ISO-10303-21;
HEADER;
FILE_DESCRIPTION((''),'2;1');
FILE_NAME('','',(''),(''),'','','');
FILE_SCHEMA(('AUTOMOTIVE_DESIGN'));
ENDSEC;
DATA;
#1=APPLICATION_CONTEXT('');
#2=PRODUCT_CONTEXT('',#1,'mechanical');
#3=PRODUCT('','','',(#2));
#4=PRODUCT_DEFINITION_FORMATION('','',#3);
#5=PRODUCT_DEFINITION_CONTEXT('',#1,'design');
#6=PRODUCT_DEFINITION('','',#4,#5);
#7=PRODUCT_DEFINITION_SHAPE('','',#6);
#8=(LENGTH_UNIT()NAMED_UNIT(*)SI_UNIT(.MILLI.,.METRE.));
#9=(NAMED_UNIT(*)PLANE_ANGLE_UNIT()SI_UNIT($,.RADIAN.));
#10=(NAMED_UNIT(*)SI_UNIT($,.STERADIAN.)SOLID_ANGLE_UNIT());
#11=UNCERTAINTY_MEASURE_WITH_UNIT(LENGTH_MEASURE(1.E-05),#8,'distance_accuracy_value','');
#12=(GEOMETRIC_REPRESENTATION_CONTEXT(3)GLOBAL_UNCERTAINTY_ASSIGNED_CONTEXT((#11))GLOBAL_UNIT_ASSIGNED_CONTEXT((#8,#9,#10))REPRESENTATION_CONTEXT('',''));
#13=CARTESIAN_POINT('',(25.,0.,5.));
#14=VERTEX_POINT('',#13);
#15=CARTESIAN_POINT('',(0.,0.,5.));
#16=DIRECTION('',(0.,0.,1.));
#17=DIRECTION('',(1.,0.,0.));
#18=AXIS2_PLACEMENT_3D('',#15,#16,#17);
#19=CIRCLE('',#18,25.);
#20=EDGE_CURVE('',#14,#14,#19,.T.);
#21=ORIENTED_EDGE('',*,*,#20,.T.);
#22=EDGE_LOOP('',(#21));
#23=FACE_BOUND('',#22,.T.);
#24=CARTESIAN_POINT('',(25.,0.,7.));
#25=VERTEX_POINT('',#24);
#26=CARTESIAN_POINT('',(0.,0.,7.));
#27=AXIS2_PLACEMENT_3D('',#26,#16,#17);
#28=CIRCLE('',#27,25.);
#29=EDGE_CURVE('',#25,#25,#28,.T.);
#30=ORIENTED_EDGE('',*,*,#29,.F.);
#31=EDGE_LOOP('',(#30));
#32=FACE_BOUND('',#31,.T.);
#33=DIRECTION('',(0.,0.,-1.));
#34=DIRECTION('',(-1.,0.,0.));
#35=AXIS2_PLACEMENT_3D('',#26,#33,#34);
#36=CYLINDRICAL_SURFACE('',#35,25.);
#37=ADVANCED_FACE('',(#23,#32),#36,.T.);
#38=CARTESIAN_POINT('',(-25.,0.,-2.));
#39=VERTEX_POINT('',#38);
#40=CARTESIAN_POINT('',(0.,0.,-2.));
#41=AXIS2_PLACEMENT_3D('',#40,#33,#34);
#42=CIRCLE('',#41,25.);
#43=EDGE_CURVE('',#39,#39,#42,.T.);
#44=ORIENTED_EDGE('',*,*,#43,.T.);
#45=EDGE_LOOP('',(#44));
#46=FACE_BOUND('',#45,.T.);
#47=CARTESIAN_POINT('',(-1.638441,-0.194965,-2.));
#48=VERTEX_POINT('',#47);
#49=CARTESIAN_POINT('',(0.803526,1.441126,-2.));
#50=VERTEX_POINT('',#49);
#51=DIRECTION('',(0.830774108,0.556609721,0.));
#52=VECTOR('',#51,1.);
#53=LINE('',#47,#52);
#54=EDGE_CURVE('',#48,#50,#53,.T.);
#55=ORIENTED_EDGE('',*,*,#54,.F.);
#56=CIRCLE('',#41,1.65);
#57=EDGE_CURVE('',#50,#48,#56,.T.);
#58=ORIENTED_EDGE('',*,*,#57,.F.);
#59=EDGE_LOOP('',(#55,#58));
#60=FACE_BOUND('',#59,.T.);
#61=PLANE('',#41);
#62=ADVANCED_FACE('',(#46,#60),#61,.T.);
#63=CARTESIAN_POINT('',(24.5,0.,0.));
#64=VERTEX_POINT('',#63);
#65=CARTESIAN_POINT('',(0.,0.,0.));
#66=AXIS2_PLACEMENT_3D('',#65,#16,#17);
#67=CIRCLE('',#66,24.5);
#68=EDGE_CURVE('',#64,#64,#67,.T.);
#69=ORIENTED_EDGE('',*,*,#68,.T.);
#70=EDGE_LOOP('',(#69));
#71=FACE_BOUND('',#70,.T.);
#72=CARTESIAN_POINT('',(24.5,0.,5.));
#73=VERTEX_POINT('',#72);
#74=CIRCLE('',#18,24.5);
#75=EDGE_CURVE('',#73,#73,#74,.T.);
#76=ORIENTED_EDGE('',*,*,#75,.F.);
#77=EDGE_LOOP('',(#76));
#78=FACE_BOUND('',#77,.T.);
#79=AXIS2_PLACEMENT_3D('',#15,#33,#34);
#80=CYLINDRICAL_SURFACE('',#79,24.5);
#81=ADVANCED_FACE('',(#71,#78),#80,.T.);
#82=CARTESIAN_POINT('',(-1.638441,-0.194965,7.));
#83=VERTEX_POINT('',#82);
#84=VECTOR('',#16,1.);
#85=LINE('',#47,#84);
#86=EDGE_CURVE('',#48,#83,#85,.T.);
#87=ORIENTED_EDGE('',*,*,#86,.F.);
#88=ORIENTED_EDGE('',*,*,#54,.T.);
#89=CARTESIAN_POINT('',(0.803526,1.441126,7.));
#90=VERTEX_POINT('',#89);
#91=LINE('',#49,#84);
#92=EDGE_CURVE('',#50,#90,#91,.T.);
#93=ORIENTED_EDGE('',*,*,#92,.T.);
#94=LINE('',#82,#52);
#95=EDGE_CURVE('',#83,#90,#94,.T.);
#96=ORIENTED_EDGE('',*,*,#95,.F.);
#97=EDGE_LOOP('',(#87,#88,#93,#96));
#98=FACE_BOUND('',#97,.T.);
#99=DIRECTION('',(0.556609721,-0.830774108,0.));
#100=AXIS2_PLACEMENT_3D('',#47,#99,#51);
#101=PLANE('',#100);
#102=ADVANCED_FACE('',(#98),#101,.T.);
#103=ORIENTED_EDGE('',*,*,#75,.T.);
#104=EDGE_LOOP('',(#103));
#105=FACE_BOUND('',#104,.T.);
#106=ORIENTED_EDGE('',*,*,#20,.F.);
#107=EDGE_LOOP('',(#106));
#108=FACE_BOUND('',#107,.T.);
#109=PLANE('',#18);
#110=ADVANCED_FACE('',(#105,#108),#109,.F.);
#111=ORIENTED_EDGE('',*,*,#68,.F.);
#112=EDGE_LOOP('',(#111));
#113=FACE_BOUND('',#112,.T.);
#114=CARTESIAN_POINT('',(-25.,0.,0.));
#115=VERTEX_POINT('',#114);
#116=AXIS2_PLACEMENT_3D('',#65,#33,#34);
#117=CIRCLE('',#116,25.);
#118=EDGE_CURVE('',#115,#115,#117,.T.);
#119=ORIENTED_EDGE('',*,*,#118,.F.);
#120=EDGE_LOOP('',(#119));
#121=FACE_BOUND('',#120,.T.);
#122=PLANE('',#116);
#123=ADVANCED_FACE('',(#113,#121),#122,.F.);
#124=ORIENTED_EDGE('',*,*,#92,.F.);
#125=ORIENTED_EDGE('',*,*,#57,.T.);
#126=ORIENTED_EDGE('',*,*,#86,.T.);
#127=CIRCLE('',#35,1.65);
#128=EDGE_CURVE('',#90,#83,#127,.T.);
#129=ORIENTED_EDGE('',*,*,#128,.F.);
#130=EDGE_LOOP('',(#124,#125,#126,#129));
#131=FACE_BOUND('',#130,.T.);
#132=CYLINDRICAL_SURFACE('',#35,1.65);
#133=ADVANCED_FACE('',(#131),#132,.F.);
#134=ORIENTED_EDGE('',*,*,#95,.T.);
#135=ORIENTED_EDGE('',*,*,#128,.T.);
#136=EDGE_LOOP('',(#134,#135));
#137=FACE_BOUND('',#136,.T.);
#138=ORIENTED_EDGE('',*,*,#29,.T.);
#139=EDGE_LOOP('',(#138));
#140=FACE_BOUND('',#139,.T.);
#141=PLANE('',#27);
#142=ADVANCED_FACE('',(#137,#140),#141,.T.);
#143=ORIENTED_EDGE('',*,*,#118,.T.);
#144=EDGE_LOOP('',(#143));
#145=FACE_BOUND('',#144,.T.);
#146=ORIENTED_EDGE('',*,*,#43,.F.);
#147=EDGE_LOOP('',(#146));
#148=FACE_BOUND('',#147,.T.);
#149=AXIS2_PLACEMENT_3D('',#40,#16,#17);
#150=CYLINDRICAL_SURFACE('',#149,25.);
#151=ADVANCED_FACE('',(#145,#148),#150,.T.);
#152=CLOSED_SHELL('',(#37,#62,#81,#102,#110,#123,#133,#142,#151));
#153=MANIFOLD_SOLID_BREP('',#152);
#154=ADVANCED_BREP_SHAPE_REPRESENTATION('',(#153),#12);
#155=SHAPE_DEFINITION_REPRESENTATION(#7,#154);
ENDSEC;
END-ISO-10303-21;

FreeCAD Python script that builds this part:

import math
import FreeCAD as App
import Part
import Sketcher

V = App.Vector

doc = App.newDocument("Part")
body = doc.addObject("PartDesign::Body", "Body")

# Sketch on XY plane
sketch1 = body.newObject("Sketcher::SketchObject", "Sketch")
sketch1.AttachmentSupport = (doc.getObject("XY_Plane"), [""])
sketch1.MapMode = "FlatFace"
sketch1.addGeometry(Part.Circle(V(0, 0, 0), V(0, 0, 1), 24), False)
sketch1.addConstraint([
    Sketcher.Constraint("Coincident", 0, 3, -1, 1),
    Sketcher.Constraint("Diameter", 0, 49.0),
])
pad1 = body.newObject("PartDesign::Pad", "Pad")
pad1.Profile = sketch1
pad1.Length = 5

# Sketch on XY plane
sketch2 = body.newObject("Sketcher::SketchObject", "Sketch001")
sketch2.AttachmentSupport = (doc.getObject("XY_Plane"), [""])
sketch2.MapMode = "FlatFace"
sketch2.addGeometry(Part.Circle(V(0, 0, 0), V(0, 0, 1), 25), False)
sketch2.addConstraint([
    Sketcher.Constraint("Coincident", 0, 3, -1, 1),
    Sketcher.Constraint("Diameter", 0, 50.0),
])
pad2 = body.newObject("PartDesign::Pad", "Pad001")
pad2.Profile = sketch2
pad2.Length = 2
pad2.Reversed = True

# Sketch on XY plane
sketch3 = body.newObject("Sketcher::SketchObject", "Sketch002")
sketch3.AttachmentSupport = (doc.getObject("XY_Plane"), [""])
sketch3.MapMode = "FlatFace"
sketch3.AttachmentOffset = App.Placement(V(0, 0, 7), App.Rotation())
sketch3.addGeometry(Part.Circle(V(0, 0, 0), V(0, 0, 1), 25), False)
sketch3.addConstraint([
    Sketcher.Constraint("Coincident", 0, 3, -1, 1),
    Sketcher.Constraint("Diameter", 0, 50.0),
])
pad3 = body.newObject("PartDesign::Pad", "Pad002")
pad3.Profile = sketch3
pad3.Length = 2
pad3.Reversed = True

# Sketch on XY plane
sketch4 = body.newObject("Sketcher::SketchObject", "Sketch003")
sketch4.AttachmentSupport = (doc.getObject("XY_Plane"), [""])
sketch4.MapMode = "FlatFace"
sketch4.AttachmentOffset = App.Placement(V(0, 0, -2), App.Rotation())
sketch4.addGeometry(Part.Circle(V(0, 0, 0), V(0, 0, 1), 1.6), False)
sketch4.addConstraint([
    Sketcher.Constraint("Coincident", 0, 3, -1, 1),
    Sketcher.Constraint("Diameter", 0, 3.3),
])
pocket1 = body.newObject("PartDesign::Pocket", "Pocket")
pocket1.Profile = sketch4
pocket1.Type = "ThroughAll"
pocket1.Reversed = True

# Sketch on XY plane
sketch5 = body.newObject("Sketcher::SketchObject", "Sketch004")
sketch5.AttachmentSupport = (doc.getObject("XY_Plane"), [""])
sketch5.MapMode = "FlatFace"
sketch5.AttachmentOffset = App.Placement(V(0, 0, 7), App.Rotation())
sketch5.addGeometry([
    Part.LineSegment(V(-1.6, -0.2, 0), V(0.8, 1.4, 0)),
    Part.ArcOfCircle(Part.Circle(V(0, 0, 0), V(0, 0, 1), 1.6), math.radians(61), math.radians(187)),
], False)
sketch5.addConstraint([
    Sketcher.Constraint("Coincident", 0, 1, 1, 2),
    Sketcher.Constraint("Coincident", 1, 1, 0, 2),
    Sketcher.Constraint("Coincident", 1, 3, -1, 1),
    Sketcher.Constraint("Radius", 1, 1.65),
    Sketcher.Constraint("DistanceX", 0, 1, -1, 1, 1.638441),
    Sketcher.Constraint("DistanceY", 0, 1, 1, 1, 1.636092),
])
pad4 = body.newObject("PartDesign::Pad", "Pad003")
pad4.Profile = sketch5
pad4.Length = 9
pad4.Reversed = True

doc.recompute()
